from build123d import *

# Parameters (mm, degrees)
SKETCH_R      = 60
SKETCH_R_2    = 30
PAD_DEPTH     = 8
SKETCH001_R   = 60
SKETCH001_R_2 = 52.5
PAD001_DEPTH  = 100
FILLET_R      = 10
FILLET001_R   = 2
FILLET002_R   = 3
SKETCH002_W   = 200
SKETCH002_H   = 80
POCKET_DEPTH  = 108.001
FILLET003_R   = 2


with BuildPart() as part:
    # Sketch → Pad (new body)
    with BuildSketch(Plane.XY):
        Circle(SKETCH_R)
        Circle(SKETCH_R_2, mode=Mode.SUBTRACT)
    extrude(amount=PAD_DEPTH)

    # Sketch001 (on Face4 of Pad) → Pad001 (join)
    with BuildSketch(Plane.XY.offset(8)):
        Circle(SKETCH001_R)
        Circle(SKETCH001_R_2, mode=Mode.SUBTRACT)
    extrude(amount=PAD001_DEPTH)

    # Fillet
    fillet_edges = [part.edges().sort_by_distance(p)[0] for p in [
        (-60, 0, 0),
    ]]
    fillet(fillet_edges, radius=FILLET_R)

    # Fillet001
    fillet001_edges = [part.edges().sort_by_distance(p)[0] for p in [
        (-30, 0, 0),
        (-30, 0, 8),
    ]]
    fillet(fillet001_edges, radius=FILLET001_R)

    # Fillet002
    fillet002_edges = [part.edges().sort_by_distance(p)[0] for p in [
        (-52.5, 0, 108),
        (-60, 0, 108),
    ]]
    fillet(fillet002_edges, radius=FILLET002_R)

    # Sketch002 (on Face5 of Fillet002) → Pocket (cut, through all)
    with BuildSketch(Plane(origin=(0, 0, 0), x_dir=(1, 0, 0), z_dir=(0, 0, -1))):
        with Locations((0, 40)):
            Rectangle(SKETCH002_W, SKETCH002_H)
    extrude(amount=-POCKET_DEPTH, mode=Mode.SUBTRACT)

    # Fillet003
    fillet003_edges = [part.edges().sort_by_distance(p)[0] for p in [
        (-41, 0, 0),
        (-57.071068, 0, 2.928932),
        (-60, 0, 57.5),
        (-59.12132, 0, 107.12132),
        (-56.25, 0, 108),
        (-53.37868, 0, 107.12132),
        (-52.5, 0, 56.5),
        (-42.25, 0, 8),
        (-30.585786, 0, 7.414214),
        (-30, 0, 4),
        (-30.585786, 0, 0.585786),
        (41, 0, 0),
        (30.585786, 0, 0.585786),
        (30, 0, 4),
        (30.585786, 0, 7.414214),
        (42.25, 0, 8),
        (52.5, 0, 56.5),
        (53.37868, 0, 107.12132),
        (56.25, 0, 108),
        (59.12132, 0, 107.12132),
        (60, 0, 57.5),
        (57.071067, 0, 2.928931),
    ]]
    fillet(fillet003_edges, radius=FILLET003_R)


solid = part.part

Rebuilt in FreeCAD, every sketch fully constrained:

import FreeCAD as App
import Part
import Sketcher
Q = App.Units.Quantity


def edges_at(feature, points):
    """Names of the edges that pass closest to the given points."""
    edges = feature.Shape.Edges
    near = lambda p: min(range(len(edges)), key=lambda i: edges[i].distToShape(Part.Vertex(*p))[0])
    return sorted({f"Edge{near(p) + 1}" for p in points})


def add_polygon(sketch, points):
    """Adds a closed chain of lines whose ends are joined by coincident constraints."""
    first, n = sketch.GeometryCount, len(points)
    for a, b in zip(points, points[1:] + points[:1]):
        sketch.addGeometry(Part.LineSegment(App.Vector(*a, 0), App.Vector(*b, 0)), False)
    for i in range(n):
        sketch.addConstraint(Sketcher.Constraint("Coincident", first + i, 2, first + (i + 1) % n, 1))

doc = App.newDocument("Part")
params = doc.addObject("Spreadsheet::Sheet", "Params")
for row, (alias, value) in enumerate([
    ("sketch1_diameter", "120 mm"),
    ("sketch1_diameter2", "60 mm"),
    ("pad1_length", "8 mm"),
    ("sketch2_diameter", "120 mm"),
    ("sketch2_diameter2", "105 mm"),
    ("pad2_length", "100 mm"),
    ("fillet_radius", "10 mm"),
    ("fillet2_radius", "2 mm"),
    ("fillet3_radius", "3 mm"),
    ("sketch3_width", "200 mm"),
    ("sketch3_height", "80 mm"),
    ("fillet4_radius", "2 mm"),
], start=1):
    params.set(f"A{row}", alias)
    params.set(f"B{row}", "=" + value)
    params.setAlias(f"B{row}", alias)

body = doc.addObject("PartDesign::Body", "Body")

# Sketch on XY plane
sketch1 = doc.addObject("Sketcher::SketchObject", "Sketch")
body.addObject(sketch1)
sketch1.AttachmentSupport = (doc.XY_Plane, [""])
sketch1.MapMode = "FlatFace"
sketch1.addGeometry(Part.Circle(App.Vector(0, 0, 0), App.Vector(0, 0, 1), 60), False)
sketch1.addGeometry(Part.Circle(App.Vector(0, 0, 0), App.Vector(0, 0, 1), 30), False)
sketch1.addConstraint(Sketcher.Constraint("Coincident", 0, 3, -1, 1))
sketch1.addConstraint(Sketcher.Constraint("Coincident", 1, 3, -1, 1))
sketch1.addConstraint(Sketcher.Constraint("Diameter", 0, Q("120 mm")))
sketch1.addConstraint(Sketcher.Constraint("Diameter", 1, Q("60 mm")))
sketch1.setExpression("Constraints[2]", "Params.sketch1_diameter")
sketch1.setExpression("Constraints[3]", "Params.sketch1_diameter2")
pad1 = doc.addObject("PartDesign::Pad", "Pad")
body.addObject(pad1)
pad1.Profile = sketch1
pad1.setExpression("Length", "Params.pad1_length")

# Sketch on XY plane
sketch2 = doc.addObject("Sketcher::SketchObject", "Sketch001")
body.addObject(sketch2)
sketch2.AttachmentSupport = (doc.XY_Plane, [""])
sketch2.MapMode = "FlatFace"
sketch2.AttachmentOffset = App.Placement(App.Vector(0, 0, 8), App.Rotation())
sketch2.addGeometry(Part.Circle(App.Vector(0, 0, 0), App.Vector(0, 0, 1), 60), False)
sketch2.addGeometry(Part.Circle(App.Vector(0, 0, 0), App.Vector(0, 0, 1), 52), False)
sketch2.addConstraint(Sketcher.Constraint("Coincident", 0, 3, -1, 1))
sketch2.addConstraint(Sketcher.Constraint("Coincident", 1, 3, -1, 1))
sketch2.addConstraint(Sketcher.Constraint("Diameter", 0, Q("120 mm")))
sketch2.addConstraint(Sketcher.Constraint("Diameter", 1, Q("105 mm")))
sketch2.setExpression("Constraints[2]", "Params.sketch2_diameter")
sketch2.setExpression("Constraints[3]", "Params.sketch2_diameter2")
pad2 = doc.addObject("PartDesign::Pad", "Pad001")
body.addObject(pad2)
pad2.Profile = sketch2
pad2.setExpression("Length", "Params.pad2_length")
doc.recompute()

fillet = doc.addObject("PartDesign::Fillet", "Fillet")
body.addObject(fillet)
fillet.Base = (pad2, edges_at(pad2, [(-60, 0, 0)]))
fillet.setExpression("Radius", "Params.fillet_radius")
doc.recompute()

fillet2 = doc.addObject("PartDesign::Fillet", "Fillet001")
body.addObject(fillet2)
fillet2.Base = (fillet, edges_at(fillet, [(-30, 0, 0), (-30, 0, 8)]))
fillet2.setExpression("Radius", "Params.fillet2_radius")
doc.recompute()

fillet3 = doc.addObject("PartDesign::Fillet", "Fillet002")
body.addObject(fillet3)
fillet3.Base = (fillet2, edges_at(fillet2, [(-52.5, 0, 108), (-60, 0, 108)]))
fillet3.setExpression("Radius", "Params.fillet3_radius")

# Sketch on XY plane
sketch3 = doc.addObject("Sketcher::SketchObject", "Sketch002")
body.addObject(sketch3)
sketch3.AttachmentSupport = (doc.XY_Plane, [""])
sketch3.MapMode = "FlatFace"
add_polygon(sketch3, [(-100, -80), (-100, 0), (100, 0), (100, -80)])  # lines 0-3
sketch3.addConstraint(Sketcher.Constraint("Vertical", 0))
sketch3.addConstraint(Sketcher.Constraint("Horizontal", 1))
sketch3.addConstraint(Sketcher.Constraint("Vertical", 2))
sketch3.addConstraint(Sketcher.Constraint("Horizontal", 3))
sketch3.addConstraint(Sketcher.Constraint("Symmetric", 0, 2, 1, 2, -1, 1))
sketch3.addConstraint(Sketcher.Constraint("DistanceX", 1, 1, 1, 2, Q("200 mm")))
sketch3.addConstraint(Sketcher.Constraint("DistanceY", 0, 1, 0, 2, Q("80 mm")))
sketch3.setExpression("Constraints[9]", "Params.sketch3_width")
sketch3.setExpression("Constraints[10]", "Params.sketch3_height")
pocket1 = doc.addObject("PartDesign::Pocket", "Pocket")
body.addObject(pocket1)
pocket1.Profile = sketch3
pocket1.Type = "ThroughAll"
pocket1.Reversed = True
doc.recompute()

fillet4 = doc.addObject("PartDesign::Fillet", "Fillet003")
body.addObject(fillet4)
fillet4.Base = (pocket1, edges_at(pocket1, [
    (-41, 0, 0),
    (-57.071, 0, 2.929),
    (-60, 0, 57.5),
    (-59.121, 0, 107.121),
    (-56.25, 0, 108),
    (-53.379, 0, 107.121),
    (-52.5, 0, 56.5),
    (-42.25, 0, 8),
    (-30.586, 0, 7.414),
    (-30, 0, 4),
    (-30.586, 0, 0.586),
    (41, 0, 0),
    (30.586, 0, 0.586),
    (30, 0, 4),
    (30.586, 0, 7.414),
    (42.25, 0, 8),
    (52.5, 0, 56.5),
    (53.379, 0, 107.121),
    (56.25, 0, 108),
    (59.121, 0, 107.121),
    (60, 0, 57.5),
    (57.071, 0, 2.929),
]))
fillet4.setExpression("Radius", "Params.fillet4_radius")

doc.recompute()
